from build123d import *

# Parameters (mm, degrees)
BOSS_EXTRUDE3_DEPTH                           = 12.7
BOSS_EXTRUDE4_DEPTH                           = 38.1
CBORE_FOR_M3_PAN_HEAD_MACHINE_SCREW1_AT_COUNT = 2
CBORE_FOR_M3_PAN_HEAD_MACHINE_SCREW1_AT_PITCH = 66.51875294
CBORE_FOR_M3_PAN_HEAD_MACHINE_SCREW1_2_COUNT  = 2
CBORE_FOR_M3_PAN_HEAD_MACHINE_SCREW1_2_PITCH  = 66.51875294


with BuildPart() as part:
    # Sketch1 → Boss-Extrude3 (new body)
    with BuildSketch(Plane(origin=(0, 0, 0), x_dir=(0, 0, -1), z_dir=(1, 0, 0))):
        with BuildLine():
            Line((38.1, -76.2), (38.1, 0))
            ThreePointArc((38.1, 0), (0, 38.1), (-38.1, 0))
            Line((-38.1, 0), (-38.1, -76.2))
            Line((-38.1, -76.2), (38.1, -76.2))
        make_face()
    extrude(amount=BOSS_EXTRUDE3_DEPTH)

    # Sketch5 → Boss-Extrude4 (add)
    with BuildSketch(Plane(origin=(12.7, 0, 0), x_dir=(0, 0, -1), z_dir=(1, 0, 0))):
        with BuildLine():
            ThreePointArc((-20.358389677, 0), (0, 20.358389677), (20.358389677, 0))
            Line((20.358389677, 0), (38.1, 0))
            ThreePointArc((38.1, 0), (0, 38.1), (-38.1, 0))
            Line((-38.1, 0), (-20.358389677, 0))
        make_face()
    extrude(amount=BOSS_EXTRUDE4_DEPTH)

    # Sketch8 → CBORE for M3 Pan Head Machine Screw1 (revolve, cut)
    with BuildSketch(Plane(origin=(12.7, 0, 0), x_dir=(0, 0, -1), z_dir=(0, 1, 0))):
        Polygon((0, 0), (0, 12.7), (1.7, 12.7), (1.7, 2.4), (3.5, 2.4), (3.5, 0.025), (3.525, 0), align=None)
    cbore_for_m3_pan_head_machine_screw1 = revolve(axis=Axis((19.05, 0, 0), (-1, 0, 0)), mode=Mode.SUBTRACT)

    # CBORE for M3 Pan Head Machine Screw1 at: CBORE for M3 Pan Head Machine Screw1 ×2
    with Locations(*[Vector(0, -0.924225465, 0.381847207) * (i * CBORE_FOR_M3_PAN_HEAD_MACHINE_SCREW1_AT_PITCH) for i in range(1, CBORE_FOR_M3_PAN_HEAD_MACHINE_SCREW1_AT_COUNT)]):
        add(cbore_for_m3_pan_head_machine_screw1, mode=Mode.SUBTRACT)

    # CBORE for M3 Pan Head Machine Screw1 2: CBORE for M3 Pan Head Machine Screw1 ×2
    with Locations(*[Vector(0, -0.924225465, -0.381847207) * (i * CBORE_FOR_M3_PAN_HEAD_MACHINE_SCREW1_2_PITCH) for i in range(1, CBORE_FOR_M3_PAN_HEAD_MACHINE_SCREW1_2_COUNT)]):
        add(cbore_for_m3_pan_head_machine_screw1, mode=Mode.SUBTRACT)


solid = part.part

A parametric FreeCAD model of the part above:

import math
import FreeCAD as App
import Part
import Sketcher
Q = App.Units.Quantity

doc = App.newDocument("Part")
body = doc.addObject("PartDesign::Body", "Body")

# Sketch on YZ plane
sketch1 = body.newObject("Sketcher::SketchObject", "Sketch")
sketch1.AttachmentSupport = (doc.getObject("YZ_Plane"), [""])
sketch1.MapMode = "FlatFace"
sketch1.addGeometry(Part.LineSegment(App.Vector(-76.2, -38.1, 0), App.Vector(0, -38.1, 0)), False)
sketch1.addGeometry(Part.ArcOfCircle(Part.Circle(App.Vector(0, 0, 0), App.Vector(0, 0, 1), 38.1), math.radians(-90), math.radians(90)), False)
sketch1.addGeometry(Part.LineSegment(App.Vector(0, 38.1, 0), App.Vector(-76.2, 38.1, 0)), False)
sketch1.addGeometry(Part.LineSegment(App.Vector(-76.2, 38.1, 0), App.Vector(-76.2, -38.1, 0)), False)
sketch1.addConstraint(Sketcher.Constraint("Tangent", 0, 2, 1, 1))
sketch1.addConstraint(Sketcher.Constraint("Tangent", 1, 2, 2, 1))
sketch1.addConstraint(Sketcher.Constraint("Coincident", 2, 2, 3, 1))
sketch1.addConstraint(Sketcher.Constraint("Coincident", 3, 2, 0, 1))
sketch1.addConstraint(Sketcher.Constraint("Horizontal", 0))
sketch1.addConstraint(Sketcher.Constraint("Horizontal", 2))
sketch1.addConstraint(Sketcher.Constraint("Vertical", 3))
sketch1.addConstraint(Sketcher.Constraint("Coincident", 1, 3, -1, 1))
sketch1.addConstraint(Sketcher.Constraint("Equal", 2, 3))
sketch1.addConstraint(Sketcher.Constraint("Radius", 1, 38.1))
pad1 = body.newObject("PartDesign::Pad", "Pad")
pad1.Profile = sketch1
pad1.Length = 12.7

# Sketch on YZ plane
sketch2 = body.newObject("Sketcher::SketchObject", "Sketch001")
sketch2.AttachmentSupport = (doc.getObject("YZ_Plane"), [""])
sketch2.MapMode = "FlatFace"
sketch2.AttachmentOffset = App.Placement(App.Vector(0, 0, 12.7), App.Rotation())
sketch2.addGeometry(Part.ArcOfCircle(Part.Circle(App.Vector(0, 0, 0), App.Vector(0, 0, 1), 20.35839), math.radians(-90), math.radians(90)), False)
sketch2.addGeometry(Part.LineSegment(App.Vector(0, -20.35839, 0), App.Vector(0, -38.1, 0)), False)
sketch2.addGeometry(Part.ArcOfCircle(Part.Circle(App.Vector(0, 0, 0), App.Vector(0, 0, 1), 38.1), math.radians(-90), math.radians(90)), False)
sketch2.addGeometry(Part.LineSegment(App.Vector(0, 38.1, 0), App.Vector(0, 20.35839, 0)), False)
sketch2.addConstraint(Sketcher.Constraint("Coincident", 0, 1, 1, 1))
sketch2.addConstraint(Sketcher.Constraint("Coincident", 1, 2, 2, 1))
sketch2.addConstraint(Sketcher.Constraint("Coincident", 2, 2, 3, 1))
sketch2.addConstraint(Sketcher.Constraint("Coincident", 3, 2, 0, 2))
sketch2.addConstraint(Sketcher.Constraint("Vertical", 1))
sketch2.addConstraint(Sketcher.Constraint("Vertical", 3))
sketch2.addConstraint(Sketcher.Constraint("Coincident", 0, 3, -1, 1))
sketch2.addConstraint(Sketcher.Constraint("Coincident", 2, 3, -1, 1))
sketch2.addConstraint(Sketcher.Constraint("PointOnObject", 0, 1, -2))
sketch2.addConstraint(Sketcher.Constraint("PointOnObject", 2, 2, -2))
sketch2.addConstraint(Sketcher.Constraint("Radius", 2, 38.1))
sketch2.addConstraint(Sketcher.Constraint("Radius", 0, 20.35839))
pad2 = body.newObject("PartDesign::Pad", "Pad001")
pad2.Profile = sketch2
pad2.Length = 38.1

# Sketch on XZ plane
sketch3 = body.newObject("Sketcher::SketchObject", "Sketch002")
sketch3.AttachmentSupport = (doc.getObject("XZ_Plane"), [""])
sketch3.MapMode = "FlatFace"
sketch3.addGeometry(Part.LineSegment(App.Vector(0, 0, 0), App.Vector(12.7, 0, 0)), False)
sketch3.addGeometry(Part.LineSegment(App.Vector(12.7, 0, 0), App.Vector(12.7, -3.525, 0)), False)
sketch3.addGeometry(Part.LineSegment(App.Vector(12.7, -3.525, 0), App.Vector(12.675, -3.5, 0)), False)
sketch3.addGeometry(Part.LineSegment(App.Vector(12.675, -3.5, 0), App.Vector(10.3, -3.5, 0)), False)
sketch3.addGeometry(Part.LineSegment(App.Vector(10.3, -3.5, 0), App.Vector(10.3, -1.7, 0)), False)
sketch3.addGeometry(Part.LineSegment(App.Vector(10.3, -1.7, 0), App.Vector(0, -1.7, 0)), False)
sketch3.addGeometry(Part.LineSegment(App.Vector(0, -1.7, 0), App.Vector(0, 0, 0)), False)
sketch3.addConstraint(Sketcher.Constraint("Coincident", 0, 2, 1, 1))
sketch3.addConstraint(Sketcher.Constraint("Coincident", 1, 2, 2, 1))
sketch3.addConstraint(Sketcher.Constraint("Coincident", 2, 2, 3, 1))
sketch3.addConstraint(Sketcher.Constraint("Coincident", 3, 2, 4, 1))
sketch3.addConstraint(Sketcher.Constraint("Coincident", 4, 2, 5, 1))
sketch3.addConstraint(Sketcher.Constraint("Coincident", 5, 2, 6, 1))
sketch3.addConstraint(Sketcher.Constraint("Coincident", 6, 2, 0, 1))
sketch3.addConstraint(Sketcher.Constraint("Horizontal", 0))
sketch3.addConstraint(Sketcher.Constraint("Vertical", 1))
sketch3.addConstraint(Sketcher.Constraint("Horizontal", 3))
sketch3.addConstraint(Sketcher.Constraint("Vertical", 4))
sketch3.addConstraint(Sketcher.Constraint("Horizontal", 5))
sketch3.addConstraint(Sketcher.Constraint("Vertical", 6))
sketch3.addConstraint(Sketcher.Constraint("Coincident", 6, 2, -1, 1))
sketch3.addConstraint(Sketcher.Constraint("Angle", 2, Q("135 deg")))
sketch3.addConstraint(Sketcher.Constraint("DistanceX", 0, 1, 0, 2, 12.7))
sketch3.addConstraint(Sketcher.Constraint("DistanceX", 5, 2, 5, 1, 10.3))
sketch3.addConstraint(Sketcher.Constraint("DistanceY", 4, 1, 4, 2, 1.8))
sketch3.addConstraint(Sketcher.Constraint("DistanceY", 6, 1, 6, 2, 1.7))
sketch3.addConstraint(Sketcher.Constraint("DistanceX", 3, 2, 3, 1, 2.375))
groove = body.newObject("PartDesign::Groove", "Groove")
groove.Profile = sketch3
groove.ReferenceAxis = (sketch3, ["H_Axis"])
groove.Angle = 360
doc.recompute()

datumline = body.newObject("PartDesign::Line", "DatumLine")
datumline.Placement = App.Placement(App.Vector(0, 0, 0), App.Rotation(App.Vector(0, 0, 1), App.Vector(0, -0.924225465, 0.381847207)))
linearpattern = body.newObject("PartDesign::LinearPattern", "LinearPattern")
linearpattern.Originals = [groove]
linearpattern.Direction = (datumline, [""])
linearpattern.Mode = "offset"
linearpattern.Offset = 66.518753
linearpattern.Occurrences = 2
body.Tip = linearpattern
doc.recompute()

datumline2 = body.newObject("PartDesign::Line", "DatumLine001")
datumline2.Placement = App.Placement(App.Vector(0, 0, 0), App.Rotation(App.Vector(0, 0, 1), App.Vector(0, -0.924225465, -0.381847207)))
linearpattern2 = body.newObject("PartDesign::LinearPattern", "LinearPattern001")
linearpattern2.Originals = [groove]
linearpattern2.Direction = (datumline2, [""])
linearpattern2.Mode = "offset"
linearpattern2.Offset = 66.518753
linearpattern2.Occurrences = 2
body.Tip = linearpattern2

doc.recompute()
